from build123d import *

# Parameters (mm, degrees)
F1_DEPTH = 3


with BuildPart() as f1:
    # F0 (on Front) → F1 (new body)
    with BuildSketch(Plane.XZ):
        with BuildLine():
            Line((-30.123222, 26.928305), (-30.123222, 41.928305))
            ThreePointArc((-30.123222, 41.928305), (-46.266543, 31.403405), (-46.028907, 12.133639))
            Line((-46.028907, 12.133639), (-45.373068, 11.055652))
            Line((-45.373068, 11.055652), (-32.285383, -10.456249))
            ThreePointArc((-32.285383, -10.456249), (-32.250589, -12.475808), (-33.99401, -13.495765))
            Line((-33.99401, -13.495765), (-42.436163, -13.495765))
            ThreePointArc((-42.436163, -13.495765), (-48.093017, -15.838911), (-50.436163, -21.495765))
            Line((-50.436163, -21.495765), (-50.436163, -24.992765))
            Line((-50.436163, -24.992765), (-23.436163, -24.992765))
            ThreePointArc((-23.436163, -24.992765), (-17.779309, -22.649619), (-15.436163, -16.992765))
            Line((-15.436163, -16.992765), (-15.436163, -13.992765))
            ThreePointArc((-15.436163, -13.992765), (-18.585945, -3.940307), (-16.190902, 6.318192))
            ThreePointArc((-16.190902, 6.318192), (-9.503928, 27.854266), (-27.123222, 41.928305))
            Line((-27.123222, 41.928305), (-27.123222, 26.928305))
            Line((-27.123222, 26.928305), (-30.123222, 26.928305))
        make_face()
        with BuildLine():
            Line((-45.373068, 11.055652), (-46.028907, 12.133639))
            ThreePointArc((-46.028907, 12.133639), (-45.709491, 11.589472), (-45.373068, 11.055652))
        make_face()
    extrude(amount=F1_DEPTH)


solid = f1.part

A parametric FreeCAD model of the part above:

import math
import FreeCAD as App
import Part
import Sketcher
from FreeCAD import Vector
Q = App.Units.Quantity

doc = App.newDocument("Part")
body = doc.addObject("PartDesign::Body", "Body")

# Sketch on XZ plane
sketch1 = body.newObject("Sketcher::SketchObject", "Sketch")
sketch1.AttachmentSupport = (doc.getObject("XZ_Plane"), [""])
sketch1.MapMode = "FlatFace"
sketch1.addGeometry([
    Part.LineSegment(Vector(-30.123222, 26.928305, 0), Vector(-30.123222, 41.928305, 0)),  # 0
    Part.ArcOfCircle(Part.Circle(Vector(-28.623223, 21.984635, 0), Vector(0, 0, 1), 19.999999), math.radians(94.301219), math.radians(209.508313)),  # 1
    Part.ArcOfCircle(Part.Circle(Vector(-28.623247, 21.984612, 0), Vector(0, 0, 1), 19.999967), math.radians(-150.491712), math.radians(-146.876269)),  # 2
    Part.LineSegment(Vector(-45.373068, 11.055652, 0), Vector(-32.285383, -10.456249, 0)),  # 3
    Part.ArcOfCircle(Part.Circle(Vector(-33.99401, -11.495765, 0), Vector(0, 0, 1), 2), math.radians(-90.000014), math.radians(31.316036)),  # 4
    Part.LineSegment(Vector(-33.99401, -13.495765, 0), Vector(-42.436163, -13.495765, 0)),  # 5
    Part.ArcOfCircle(Part.Circle(Vector(-42.436162, -21.495766, 0), Vector(0, 0, 1), 8.000001), math.radians(90.000006), math.radians(179.999994)),  # 6
    Part.LineSegment(Vector(-50.436163, -21.495765, 0), Vector(-50.436163, -24.992765, 0)),  # 7
    Part.LineSegment(Vector(-50.436163, -24.992765, 0), Vector(-23.436163, -24.992765, 0)),  # 8
    Part.ArcOfCircle(Part.Circle(Vector(-23.436164, -16.992764, 0), Vector(0, 0, 1), 8.000001), math.radians(-89.999994), math.radians(-0.000006)),  # 9
    Part.LineSegment(Vector(-15.436163, -16.992765, 0), Vector(-15.436163, -13.992765, 0)),  # 10
    Part.ArcOfCircle(Part.Circle(Vector(1.400261, -3.197636, 0), Vector(0, 0, 1), 20), math.radians(151.58911), math.radians(212.667062)),  # 11
    Part.ArcOfCircle(Part.Circle(Vector(-28.623223, 21.984634, 0), Vector(0, 0, 1), 20), math.radians(-51.565758), math.radians(85.698776)),  # 12
    Part.LineSegment(Vector(-27.123222, 41.928305, 0), Vector(-27.123222, 26.928305, 0)),  # 13
    Part.LineSegment(Vector(-27.123222, 26.928305, 0), Vector(-30.123222, 26.928305, 0)),  # 14
], False)
sketch1.addConstraint([
    Sketcher.Constraint("Coincident", 0, 2, 1, 1),
    Sketcher.Constraint("Tangent", 1, 2, 2, 1),
    Sketcher.Constraint("Coincident", 2, 2, 3, 1),
    Sketcher.Constraint("Tangent", 3, 2, 4, 2),
    Sketcher.Constraint("Tangent", 4, 1, 5, 1),
    Sketcher.Constraint("Tangent", 5, 2, 6, 1),
    Sketcher.Constraint("Tangent", 6, 2, 7, 1),
    Sketcher.Constraint("Coincident", 7, 2, 8, 1),
    Sketcher.Constraint("Tangent", 8, 2, 9, 1),
    Sketcher.Constraint("Tangent", 9, 2, 10, 1),
    Sketcher.Constraint("Coincident", 10, 2, 11, 2),
    Sketcher.Constraint("Coincident", 11, 1, 12, 1),
    Sketcher.Constraint("Coincident", 12, 2, 13, 1),
    Sketcher.Constraint("Coincident", 13, 2, 14, 1),
    Sketcher.Constraint("Coincident", 14, 2, 0, 1),
    Sketcher.Constraint("Vertical", 0),
    Sketcher.Constraint("Horizontal", 5),
    Sketcher.Constraint("Vertical", 7),
    Sketcher.Constraint("Horizontal", 8),
    Sketcher.Constraint("Vertical", 10),
    Sketcher.Constraint("Vertical", 13),
    Sketcher.Constraint("Horizontal", 14),
    Sketcher.Constraint("Coincident", 12, 3, 1, 3),
    Sketcher.Constraint("Equal", 6, 9),
    Sketcher.Constraint("Equal", 1, 11),
    Sketcher.Constraint("Equal", 11, 12),
    Sketcher.Constraint("Horizontal", 0, 2, 12, 2),
    Sketcher.Constraint("Equal", 14, 10),
    Sketcher.Constraint("Radius", 1, Q("19.999999 mm")),
    Sketcher.Constraint("Radius", 4, Q("2 mm")),
    Sketcher.Constraint("Radius", 6, Q("8.000001 mm")),
    Sketcher.Constraint("DistanceX", 8, 1, 8, 2, Q("27 mm")),
    Sketcher.Constraint("DistanceX", 14, 2, 14, 1, Q("3 mm")),
    Sketcher.Constraint("DistanceY", 0, 1, 0, 2, Q("15 mm")),
    Sketcher.Constraint("DistanceY", 7, 2, 7, 1, Q("3.497 mm")),
    Sketcher.Constraint("Radius", 2, Q("19.999967 mm")),
    Sketcher.Constraint("DistanceY", 4, 3, 1, 3, Q("33.480401 mm")),
    Sketcher.Constraint("DistanceY", 3, 2, 2, 2, Q("21.511901 mm")),
    Sketcher.Constraint("DistanceX", 5, 2, 5, 1, Q("8.442153 mm")),
    Sketcher.Constraint("DistanceY", -1, 1, 2, 3, Q("21.984612 mm")),
    Sketcher.Constraint("DistanceX", 4, 3, -1, 1, Q("33.99401 mm")),
    Sketcher.Constraint("DistanceX", -1, 1, 11, 3, Q("1.400261 mm")),
    Sketcher.Constraint("DistanceX", 0, 2, -1, 1, Q("30.123222 mm")),
    Sketcher.Constraint("DistanceY", -1, 1, 1, 2, Q("12.133639 mm")),
])
pad1 = body.newObject("PartDesign::Pad", "Pad")
pad1.Profile = sketch1
pad1.Length = 3

doc.recompute()
